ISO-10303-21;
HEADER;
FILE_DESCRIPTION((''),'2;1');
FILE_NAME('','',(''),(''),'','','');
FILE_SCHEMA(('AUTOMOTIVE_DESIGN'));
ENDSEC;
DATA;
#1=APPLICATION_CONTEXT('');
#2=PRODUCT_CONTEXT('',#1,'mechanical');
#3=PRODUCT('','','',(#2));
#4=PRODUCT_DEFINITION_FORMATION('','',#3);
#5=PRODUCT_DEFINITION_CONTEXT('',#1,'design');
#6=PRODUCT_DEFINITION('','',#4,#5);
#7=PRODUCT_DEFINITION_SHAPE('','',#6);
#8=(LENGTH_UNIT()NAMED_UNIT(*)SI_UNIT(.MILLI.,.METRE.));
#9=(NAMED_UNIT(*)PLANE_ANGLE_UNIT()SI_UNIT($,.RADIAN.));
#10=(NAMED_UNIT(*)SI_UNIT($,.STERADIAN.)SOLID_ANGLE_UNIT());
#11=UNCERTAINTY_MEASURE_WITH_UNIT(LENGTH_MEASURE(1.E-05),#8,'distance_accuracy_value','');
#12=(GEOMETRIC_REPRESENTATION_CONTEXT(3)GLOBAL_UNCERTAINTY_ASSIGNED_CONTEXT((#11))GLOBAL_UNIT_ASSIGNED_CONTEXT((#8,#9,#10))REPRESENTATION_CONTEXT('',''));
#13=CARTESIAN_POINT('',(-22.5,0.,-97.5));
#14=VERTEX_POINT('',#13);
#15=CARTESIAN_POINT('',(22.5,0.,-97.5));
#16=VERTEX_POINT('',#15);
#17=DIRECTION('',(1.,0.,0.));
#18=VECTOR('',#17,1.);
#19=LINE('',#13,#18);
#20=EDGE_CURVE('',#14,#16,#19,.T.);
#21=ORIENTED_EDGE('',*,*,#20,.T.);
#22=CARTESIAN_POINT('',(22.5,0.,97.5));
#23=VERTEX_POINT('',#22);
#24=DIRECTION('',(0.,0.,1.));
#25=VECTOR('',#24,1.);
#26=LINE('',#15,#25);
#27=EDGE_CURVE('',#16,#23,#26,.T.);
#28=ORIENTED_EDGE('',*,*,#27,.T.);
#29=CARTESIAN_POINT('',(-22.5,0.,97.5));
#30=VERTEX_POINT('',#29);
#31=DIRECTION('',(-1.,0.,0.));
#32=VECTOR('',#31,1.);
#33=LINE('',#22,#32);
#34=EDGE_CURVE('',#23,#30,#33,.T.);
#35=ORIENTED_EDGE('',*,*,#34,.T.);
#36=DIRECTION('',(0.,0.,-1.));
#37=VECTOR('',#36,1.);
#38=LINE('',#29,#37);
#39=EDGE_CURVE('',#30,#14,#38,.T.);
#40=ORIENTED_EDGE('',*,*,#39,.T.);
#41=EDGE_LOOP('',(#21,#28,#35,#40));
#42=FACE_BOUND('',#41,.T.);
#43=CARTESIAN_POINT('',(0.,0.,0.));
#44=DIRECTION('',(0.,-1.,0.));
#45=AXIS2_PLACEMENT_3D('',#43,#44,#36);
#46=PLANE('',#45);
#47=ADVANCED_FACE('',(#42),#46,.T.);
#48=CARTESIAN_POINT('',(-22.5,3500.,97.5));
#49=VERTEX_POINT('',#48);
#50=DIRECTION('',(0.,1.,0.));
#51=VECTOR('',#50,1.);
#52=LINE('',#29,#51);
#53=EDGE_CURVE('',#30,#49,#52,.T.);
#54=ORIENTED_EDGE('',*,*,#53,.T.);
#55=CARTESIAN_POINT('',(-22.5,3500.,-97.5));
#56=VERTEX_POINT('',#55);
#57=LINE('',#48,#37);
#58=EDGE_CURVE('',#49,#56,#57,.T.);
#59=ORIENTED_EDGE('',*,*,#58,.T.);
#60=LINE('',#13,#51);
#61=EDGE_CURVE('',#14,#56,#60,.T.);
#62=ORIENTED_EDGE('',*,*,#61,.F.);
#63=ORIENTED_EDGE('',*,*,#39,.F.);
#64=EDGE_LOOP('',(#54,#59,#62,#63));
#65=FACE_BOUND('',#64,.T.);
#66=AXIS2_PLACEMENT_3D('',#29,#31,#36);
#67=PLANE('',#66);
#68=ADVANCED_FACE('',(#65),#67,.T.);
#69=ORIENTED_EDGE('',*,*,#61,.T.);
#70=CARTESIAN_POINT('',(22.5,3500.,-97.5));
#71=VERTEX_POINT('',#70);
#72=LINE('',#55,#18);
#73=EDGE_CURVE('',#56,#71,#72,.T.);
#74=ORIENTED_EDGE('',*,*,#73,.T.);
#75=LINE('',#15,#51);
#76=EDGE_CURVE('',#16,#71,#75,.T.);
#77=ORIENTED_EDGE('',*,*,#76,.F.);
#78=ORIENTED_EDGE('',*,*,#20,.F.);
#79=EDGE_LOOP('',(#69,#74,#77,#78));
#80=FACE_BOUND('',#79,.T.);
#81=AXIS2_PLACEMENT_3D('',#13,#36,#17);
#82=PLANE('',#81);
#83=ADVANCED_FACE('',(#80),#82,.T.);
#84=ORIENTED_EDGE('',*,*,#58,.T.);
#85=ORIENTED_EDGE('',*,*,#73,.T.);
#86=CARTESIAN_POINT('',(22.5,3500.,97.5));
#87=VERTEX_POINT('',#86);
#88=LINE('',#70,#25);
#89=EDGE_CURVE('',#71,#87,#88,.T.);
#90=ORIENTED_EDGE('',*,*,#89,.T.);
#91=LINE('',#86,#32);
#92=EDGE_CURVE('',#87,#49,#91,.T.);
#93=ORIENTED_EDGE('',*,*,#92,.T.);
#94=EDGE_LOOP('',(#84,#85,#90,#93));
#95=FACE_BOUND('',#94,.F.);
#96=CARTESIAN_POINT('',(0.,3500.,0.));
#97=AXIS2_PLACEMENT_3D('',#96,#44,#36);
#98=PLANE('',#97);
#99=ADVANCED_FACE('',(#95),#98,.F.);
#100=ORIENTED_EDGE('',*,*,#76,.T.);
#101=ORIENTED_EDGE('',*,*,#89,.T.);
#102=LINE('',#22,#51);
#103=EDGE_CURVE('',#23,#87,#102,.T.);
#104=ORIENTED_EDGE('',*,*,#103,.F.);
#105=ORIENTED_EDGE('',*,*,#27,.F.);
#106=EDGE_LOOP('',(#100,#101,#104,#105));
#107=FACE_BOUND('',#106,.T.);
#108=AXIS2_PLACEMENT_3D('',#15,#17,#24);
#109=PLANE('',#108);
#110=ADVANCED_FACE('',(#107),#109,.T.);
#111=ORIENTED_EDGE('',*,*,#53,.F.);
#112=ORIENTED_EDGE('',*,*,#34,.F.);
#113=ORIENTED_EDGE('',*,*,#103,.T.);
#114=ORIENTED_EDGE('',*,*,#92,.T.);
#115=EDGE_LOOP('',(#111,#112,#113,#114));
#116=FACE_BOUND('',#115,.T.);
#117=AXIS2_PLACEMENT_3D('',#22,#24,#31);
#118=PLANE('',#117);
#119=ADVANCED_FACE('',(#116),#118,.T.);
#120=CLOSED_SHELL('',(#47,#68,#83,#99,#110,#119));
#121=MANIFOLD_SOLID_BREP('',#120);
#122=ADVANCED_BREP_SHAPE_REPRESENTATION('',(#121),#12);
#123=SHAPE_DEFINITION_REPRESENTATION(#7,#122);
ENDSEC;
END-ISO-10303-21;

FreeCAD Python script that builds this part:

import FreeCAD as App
import Part
import Sketcher

V = App.Vector

doc = App.newDocument("Part")
params = doc.addObject("Spreadsheet::Sheet", "Params")
for row, (alias, value) in enumerate([
    ("sketch1_width", "45 mm"),
    ("sketch1_height", "195 mm"),
    ("pad1_length", "3500 mm"),
], start=1):
    params.set(f"A{row}", alias)
    params.set(f"B{row}", "=" + value)
    params.setAlias(f"B{row}", alias)

body = doc.addObject("PartDesign::Body", "Body")

sketch1 = doc.addObject("Sketcher::SketchObject", "Sketch")
body.addObject(sketch1)
sketch1.AttachmentSupport = (doc.XZ_Plane, [""])
sketch1.MapMode = "FlatFace"
sketch1.addGeometry([
    Part.LineSegment(V(-22, 98, 0), V(-22, -98, 0)),
    Part.LineSegment(V(-22, -98, 0), V(22, -98, 0)),
    Part.LineSegment(V(22, -98, 0), V(22, 98, 0)),
    Part.LineSegment(V(22, 98, 0), V(-22, 98, 0)),
], False)
sketch1.addConstraint([
    Sketcher.Constraint("Coincident", 0, 2, 1, 1),
    Sketcher.Constraint("Coincident", 1, 2, 2, 1),
    Sketcher.Constraint("Coincident", 2, 2, 3, 1),
    Sketcher.Constraint("Coincident", 3, 2, 0, 1),
    Sketcher.Constraint("Vertical", 0),
    Sketcher.Constraint("Horizontal", 1),
    Sketcher.Constraint("Vertical", 2),
    Sketcher.Constraint("Horizontal", 3),
    Sketcher.Constraint("Symmetric", 0, 2, 2, 2, -1, 1),
    Sketcher.Constraint("DistanceX", 1, 1, 1, 2, 45.0),
    Sketcher.Constraint("DistanceY", 0, 2, 0, 1, 195.0),
])
sketch1.setExpression("Constraints[9]", "Params.sketch1_width")
sketch1.setExpression("Constraints[10]", "Params.sketch1_height")
pad1 = doc.addObject("PartDesign::Pad", "Pad")
body.addObject(pad1)
pad1.Profile = sketch1
pad1.setExpression("Length", "Params.pad1_length")
pad1.Reversed = True

doc.recompute()
